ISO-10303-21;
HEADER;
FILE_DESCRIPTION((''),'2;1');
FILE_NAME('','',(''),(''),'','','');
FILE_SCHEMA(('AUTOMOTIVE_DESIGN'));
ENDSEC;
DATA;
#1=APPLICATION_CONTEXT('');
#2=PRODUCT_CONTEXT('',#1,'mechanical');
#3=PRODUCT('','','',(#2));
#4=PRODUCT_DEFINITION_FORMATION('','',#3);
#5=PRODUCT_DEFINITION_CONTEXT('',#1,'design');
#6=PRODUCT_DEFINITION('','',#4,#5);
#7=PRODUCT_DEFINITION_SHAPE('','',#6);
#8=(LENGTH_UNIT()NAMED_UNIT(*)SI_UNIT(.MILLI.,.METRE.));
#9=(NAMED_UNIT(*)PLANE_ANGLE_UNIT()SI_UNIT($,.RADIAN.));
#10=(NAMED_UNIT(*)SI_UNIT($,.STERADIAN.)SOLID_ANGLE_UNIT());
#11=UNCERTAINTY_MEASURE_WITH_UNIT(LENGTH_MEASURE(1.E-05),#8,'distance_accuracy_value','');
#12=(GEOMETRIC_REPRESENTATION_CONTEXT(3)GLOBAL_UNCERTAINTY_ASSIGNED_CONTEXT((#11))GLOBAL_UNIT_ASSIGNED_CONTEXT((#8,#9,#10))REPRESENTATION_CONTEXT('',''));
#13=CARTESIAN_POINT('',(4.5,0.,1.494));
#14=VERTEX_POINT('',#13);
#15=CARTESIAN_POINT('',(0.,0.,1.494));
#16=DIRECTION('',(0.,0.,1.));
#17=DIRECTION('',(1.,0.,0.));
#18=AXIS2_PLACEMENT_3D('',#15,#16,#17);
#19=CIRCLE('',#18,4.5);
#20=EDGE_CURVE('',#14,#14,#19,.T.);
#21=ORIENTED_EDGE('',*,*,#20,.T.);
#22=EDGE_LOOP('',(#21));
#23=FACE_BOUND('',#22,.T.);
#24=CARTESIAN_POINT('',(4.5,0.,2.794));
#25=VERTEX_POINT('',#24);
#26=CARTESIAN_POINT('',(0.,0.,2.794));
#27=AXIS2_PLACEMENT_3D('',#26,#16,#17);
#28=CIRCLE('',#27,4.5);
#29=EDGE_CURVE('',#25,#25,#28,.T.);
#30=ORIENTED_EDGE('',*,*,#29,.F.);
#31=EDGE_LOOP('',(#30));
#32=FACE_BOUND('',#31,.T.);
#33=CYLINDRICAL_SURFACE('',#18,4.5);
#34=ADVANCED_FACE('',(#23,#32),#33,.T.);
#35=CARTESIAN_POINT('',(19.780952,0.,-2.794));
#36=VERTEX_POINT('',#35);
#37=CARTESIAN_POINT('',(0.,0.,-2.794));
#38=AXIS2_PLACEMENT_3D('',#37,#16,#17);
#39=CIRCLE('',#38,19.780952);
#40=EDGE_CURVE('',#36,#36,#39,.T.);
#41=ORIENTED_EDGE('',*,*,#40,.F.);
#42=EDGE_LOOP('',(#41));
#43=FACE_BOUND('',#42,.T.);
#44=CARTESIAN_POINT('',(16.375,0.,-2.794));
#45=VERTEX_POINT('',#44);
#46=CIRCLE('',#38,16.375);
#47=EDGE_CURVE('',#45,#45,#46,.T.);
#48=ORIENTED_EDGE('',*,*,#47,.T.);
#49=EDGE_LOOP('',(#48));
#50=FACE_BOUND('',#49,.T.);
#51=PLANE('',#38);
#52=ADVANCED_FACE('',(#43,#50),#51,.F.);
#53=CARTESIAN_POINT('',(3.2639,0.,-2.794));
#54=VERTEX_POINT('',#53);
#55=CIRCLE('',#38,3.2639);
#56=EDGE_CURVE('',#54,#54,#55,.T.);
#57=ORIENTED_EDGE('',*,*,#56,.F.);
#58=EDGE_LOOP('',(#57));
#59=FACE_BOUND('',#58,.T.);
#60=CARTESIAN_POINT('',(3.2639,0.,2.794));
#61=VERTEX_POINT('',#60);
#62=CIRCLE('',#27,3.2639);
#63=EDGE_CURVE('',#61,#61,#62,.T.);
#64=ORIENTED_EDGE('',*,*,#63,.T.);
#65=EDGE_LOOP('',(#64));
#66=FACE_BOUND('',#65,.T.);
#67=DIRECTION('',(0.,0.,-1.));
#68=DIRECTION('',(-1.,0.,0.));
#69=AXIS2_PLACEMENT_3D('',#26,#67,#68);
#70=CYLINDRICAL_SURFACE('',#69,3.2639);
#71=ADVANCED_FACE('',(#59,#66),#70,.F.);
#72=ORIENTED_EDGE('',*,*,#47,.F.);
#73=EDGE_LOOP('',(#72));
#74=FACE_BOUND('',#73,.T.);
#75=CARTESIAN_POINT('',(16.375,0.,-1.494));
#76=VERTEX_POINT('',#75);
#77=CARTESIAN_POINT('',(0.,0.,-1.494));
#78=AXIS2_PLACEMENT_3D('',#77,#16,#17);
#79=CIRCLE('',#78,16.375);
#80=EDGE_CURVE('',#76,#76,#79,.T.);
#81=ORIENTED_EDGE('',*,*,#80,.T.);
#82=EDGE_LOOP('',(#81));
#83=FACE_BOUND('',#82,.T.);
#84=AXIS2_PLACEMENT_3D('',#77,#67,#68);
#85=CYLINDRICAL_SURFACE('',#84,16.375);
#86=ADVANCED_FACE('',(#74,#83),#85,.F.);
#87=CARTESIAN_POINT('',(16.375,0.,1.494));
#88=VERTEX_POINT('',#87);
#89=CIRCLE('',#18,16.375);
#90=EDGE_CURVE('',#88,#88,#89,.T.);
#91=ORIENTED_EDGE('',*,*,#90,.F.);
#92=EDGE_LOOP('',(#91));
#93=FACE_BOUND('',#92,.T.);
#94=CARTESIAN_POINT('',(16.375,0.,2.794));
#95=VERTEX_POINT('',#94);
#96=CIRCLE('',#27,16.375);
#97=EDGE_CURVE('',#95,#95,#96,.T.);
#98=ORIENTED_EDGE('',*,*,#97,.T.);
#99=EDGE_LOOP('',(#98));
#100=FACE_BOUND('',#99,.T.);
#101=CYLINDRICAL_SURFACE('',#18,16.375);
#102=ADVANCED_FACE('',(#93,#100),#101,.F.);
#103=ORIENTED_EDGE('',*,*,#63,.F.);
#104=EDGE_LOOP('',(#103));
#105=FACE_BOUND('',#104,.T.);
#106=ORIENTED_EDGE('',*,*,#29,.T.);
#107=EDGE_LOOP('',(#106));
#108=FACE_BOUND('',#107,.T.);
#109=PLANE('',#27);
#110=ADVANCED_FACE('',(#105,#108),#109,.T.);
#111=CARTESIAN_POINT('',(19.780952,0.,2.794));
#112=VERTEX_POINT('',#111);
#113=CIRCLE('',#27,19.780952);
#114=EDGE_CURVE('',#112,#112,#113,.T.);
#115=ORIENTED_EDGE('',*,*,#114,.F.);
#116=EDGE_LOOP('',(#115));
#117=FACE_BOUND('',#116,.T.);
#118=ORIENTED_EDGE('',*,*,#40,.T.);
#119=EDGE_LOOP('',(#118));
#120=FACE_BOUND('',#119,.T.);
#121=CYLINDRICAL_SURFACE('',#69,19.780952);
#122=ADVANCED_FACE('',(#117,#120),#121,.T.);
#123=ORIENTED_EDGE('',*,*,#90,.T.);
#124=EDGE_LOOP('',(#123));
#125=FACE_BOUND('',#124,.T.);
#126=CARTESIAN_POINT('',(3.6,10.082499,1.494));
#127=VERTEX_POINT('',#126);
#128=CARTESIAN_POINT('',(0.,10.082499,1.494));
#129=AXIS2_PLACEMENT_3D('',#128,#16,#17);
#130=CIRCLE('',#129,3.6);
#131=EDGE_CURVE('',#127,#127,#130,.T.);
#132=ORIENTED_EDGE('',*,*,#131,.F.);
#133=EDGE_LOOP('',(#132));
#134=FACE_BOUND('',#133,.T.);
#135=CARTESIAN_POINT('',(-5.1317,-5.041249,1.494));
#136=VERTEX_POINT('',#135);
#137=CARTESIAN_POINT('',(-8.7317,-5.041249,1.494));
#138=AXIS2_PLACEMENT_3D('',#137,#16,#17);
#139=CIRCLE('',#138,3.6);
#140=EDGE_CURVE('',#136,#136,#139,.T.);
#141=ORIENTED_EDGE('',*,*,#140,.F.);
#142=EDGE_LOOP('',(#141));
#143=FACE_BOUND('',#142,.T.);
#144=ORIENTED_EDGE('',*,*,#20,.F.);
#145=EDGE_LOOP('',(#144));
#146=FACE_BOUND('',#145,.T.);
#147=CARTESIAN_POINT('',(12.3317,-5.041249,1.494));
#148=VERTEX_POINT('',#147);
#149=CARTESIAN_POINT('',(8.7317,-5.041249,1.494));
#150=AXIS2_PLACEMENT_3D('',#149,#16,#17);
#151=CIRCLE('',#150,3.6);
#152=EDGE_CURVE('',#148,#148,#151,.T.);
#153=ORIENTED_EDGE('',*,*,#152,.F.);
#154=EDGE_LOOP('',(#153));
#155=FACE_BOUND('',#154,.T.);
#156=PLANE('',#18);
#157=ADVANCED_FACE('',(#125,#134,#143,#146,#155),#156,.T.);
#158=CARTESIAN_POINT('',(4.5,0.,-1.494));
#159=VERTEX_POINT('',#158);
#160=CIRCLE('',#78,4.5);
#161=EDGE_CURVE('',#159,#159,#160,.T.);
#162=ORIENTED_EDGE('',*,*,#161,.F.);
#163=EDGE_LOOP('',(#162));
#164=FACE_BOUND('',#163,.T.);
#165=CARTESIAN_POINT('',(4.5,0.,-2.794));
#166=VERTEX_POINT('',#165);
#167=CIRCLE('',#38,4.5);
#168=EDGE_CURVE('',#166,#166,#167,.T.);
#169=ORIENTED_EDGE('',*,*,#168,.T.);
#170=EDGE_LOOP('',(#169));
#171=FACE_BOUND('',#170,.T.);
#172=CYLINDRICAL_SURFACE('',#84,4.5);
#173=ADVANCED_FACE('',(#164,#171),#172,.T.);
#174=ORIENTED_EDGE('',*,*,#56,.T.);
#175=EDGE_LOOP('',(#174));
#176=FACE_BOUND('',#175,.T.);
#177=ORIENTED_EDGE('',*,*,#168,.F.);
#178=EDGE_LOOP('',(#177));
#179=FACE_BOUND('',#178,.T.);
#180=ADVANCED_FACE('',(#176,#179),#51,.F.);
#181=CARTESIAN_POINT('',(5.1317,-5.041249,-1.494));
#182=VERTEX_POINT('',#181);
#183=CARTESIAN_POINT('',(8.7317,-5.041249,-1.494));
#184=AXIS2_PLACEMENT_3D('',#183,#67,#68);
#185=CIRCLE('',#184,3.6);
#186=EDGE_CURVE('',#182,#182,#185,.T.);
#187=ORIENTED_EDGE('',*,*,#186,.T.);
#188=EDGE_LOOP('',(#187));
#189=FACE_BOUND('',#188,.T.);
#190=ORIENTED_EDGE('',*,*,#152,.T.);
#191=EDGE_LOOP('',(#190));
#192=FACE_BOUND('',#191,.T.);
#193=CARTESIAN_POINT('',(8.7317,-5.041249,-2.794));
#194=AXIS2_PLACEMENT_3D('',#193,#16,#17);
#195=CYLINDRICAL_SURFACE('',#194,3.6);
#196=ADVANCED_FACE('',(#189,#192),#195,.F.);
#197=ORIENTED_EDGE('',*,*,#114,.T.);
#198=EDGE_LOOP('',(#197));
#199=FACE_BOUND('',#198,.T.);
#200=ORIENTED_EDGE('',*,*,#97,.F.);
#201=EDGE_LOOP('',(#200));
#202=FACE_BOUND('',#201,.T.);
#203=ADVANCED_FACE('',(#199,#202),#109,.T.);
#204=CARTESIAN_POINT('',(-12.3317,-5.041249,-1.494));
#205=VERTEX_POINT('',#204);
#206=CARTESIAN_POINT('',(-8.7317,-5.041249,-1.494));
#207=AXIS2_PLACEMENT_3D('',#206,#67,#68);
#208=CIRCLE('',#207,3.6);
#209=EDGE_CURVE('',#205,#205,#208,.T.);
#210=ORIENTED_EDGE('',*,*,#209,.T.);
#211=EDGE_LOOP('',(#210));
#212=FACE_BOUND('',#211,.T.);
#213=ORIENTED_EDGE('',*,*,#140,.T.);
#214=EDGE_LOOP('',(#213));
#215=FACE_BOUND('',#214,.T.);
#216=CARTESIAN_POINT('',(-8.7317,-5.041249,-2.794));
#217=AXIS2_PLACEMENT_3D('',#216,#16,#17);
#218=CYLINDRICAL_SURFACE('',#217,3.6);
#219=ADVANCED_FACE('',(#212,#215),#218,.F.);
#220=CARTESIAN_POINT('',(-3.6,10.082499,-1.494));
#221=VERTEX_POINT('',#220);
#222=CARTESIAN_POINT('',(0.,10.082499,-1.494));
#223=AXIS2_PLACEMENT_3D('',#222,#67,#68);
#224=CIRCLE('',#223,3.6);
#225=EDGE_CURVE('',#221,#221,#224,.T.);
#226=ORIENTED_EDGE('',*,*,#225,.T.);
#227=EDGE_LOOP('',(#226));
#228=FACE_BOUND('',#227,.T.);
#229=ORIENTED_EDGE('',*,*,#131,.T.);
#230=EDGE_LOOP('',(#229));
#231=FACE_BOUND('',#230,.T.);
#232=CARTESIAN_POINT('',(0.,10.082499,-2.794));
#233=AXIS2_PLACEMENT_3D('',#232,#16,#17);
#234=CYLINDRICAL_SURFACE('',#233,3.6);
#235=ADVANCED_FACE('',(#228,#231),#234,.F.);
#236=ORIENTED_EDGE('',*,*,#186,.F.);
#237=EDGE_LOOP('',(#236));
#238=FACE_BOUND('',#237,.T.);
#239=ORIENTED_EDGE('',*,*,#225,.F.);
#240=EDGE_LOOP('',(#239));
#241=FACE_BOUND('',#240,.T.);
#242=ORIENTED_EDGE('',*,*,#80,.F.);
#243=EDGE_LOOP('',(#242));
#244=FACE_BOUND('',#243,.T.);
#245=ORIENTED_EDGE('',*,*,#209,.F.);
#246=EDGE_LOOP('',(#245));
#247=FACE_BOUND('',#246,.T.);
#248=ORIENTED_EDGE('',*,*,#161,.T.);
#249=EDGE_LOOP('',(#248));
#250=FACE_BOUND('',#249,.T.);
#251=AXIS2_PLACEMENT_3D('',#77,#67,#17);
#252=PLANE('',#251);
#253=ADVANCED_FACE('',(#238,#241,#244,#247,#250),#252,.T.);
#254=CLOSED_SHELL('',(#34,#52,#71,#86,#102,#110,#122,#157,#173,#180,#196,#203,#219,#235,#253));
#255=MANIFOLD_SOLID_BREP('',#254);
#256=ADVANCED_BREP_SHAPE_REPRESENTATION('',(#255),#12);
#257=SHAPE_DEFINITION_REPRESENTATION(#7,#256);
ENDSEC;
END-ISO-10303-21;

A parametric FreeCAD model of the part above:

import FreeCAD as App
import Part
import Sketcher
from FreeCAD import Vector
Q = App.Units.Quantity

doc = App.newDocument("Part")
params = doc.addObject("Spreadsheet::Sheet", "Params")
for row, (alias, value) in enumerate([
    ("pad1_length", "5.588 mm"),
    ("sketch2_diameter", "9 mm"),
    ("sketch2_diameter2", "32.75 mm"),
    ("pocket1_length", "1.3 mm"),
    ("sketch3_diameter", "7.2 mm"),
], start=1):
    params.set(f"A{row}", alias)
    params.set(f"B{row}", "=" + value)
    params.setAlias(f"B{row}", alias)

body = doc.addObject("PartDesign::Body", "Body")

# Sketch on XY plane
sketch1 = body.newObject("Sketcher::SketchObject", "Sketch")
sketch1.AttachmentSupport = (doc.getObject("XY_Plane"), [""])
sketch1.MapMode = "FlatFace"
sketch1.addGeometry([
    Part.Circle(Vector(0, 0, 0), Vector(0, 0, 1), 19.8),
    Part.Circle(Vector(0, 0, 0), Vector(0, 0, 1), 3.3),
], False)
sketch1.addConstraint([
    Sketcher.Constraint("Coincident", 0, 3, -1, 1),
    Sketcher.Constraint("Coincident", 1, 3, -1, 1),
    Sketcher.Constraint("Diameter", 1, Q("6.5278 mm")),
    Sketcher.Constraint("Diameter", 0, Q("39.561905 mm")),
])
pad1 = body.newObject("PartDesign::Pad", "Pad")
pad1.Profile = sketch1
pad1.setExpression("Length", "Params.pad1_length")
pad1.Midplane = True

# Sketch on XY plane
sketch2 = body.newObject("Sketcher::SketchObject", "Sketch001")
sketch2.AttachmentSupport = (doc.getObject("XY_Plane"), [""])
sketch2.MapMode = "FlatFace"
sketch2.AttachmentOffset = App.Placement(Vector(0, 0, 2.794), App.Rotation())
sketch2.addGeometry([
    Part.Circle(Vector(0, 0, 0), Vector(0, 0, 1), 16.4),
    Part.Circle(Vector(0, 0, 0), Vector(0, 0, 1), 4.5),
], False)
sketch2.addConstraint([
    Sketcher.Constraint("Coincident", 0, 3, -1, 1),
    Sketcher.Constraint("Coincident", 1, 3, -1, 1),
    Sketcher.Constraint("Diameter", 1, Q("9 mm")),
    Sketcher.Constraint("Diameter", 0, Q("32.75 mm")),
])
sketch2.setExpression("Constraints[2]", "Params.sketch2_diameter")
sketch2.setExpression("Constraints[3]", "Params.sketch2_diameter2")
pocket1 = body.newObject("PartDesign::Pocket", "Pocket")
pocket1.Profile = sketch2
pocket1.setExpression("Length", "Params.pocket1_length")
doc.recompute()

mirrored = body.newObject("PartDesign::Mirrored", "Mirrored")
mirrored.Originals = [pocket1]
mirrored.MirrorPlane = (doc.getObject("XY_Plane"), [""])
body.Tip = mirrored

# Sketch on XY plane
sketch3 = body.newObject("Sketcher::SketchObject", "Sketch002")
sketch3.AttachmentSupport = (doc.getObject("XY_Plane"), [""])
sketch3.MapMode = "FlatFace"
sketch3.AttachmentOffset = App.Placement(Vector(0, 0, 1.494), App.Rotation())
sketch3.addGeometry([
    Part.Circle(Vector(0, 10.1, 0), Vector(0, 0, 1), 3.6),
    Part.Circle(Vector(8.7, -5, 0), Vector(0, 0, 1), 3.6),
    Part.Circle(Vector(-8.7, -5, 0), Vector(0, 0, 1), 3.6),
], False)
sketch3.addConstraint([
    Sketcher.Constraint("Equal", 0, 1),
    Sketcher.Constraint("Equal", 1, 2),
    Sketcher.Constraint("Symmetric", 1, 3, 2, 3, -2),
    Sketcher.Constraint("PointOnObject", 0, 3, -2),
    Sketcher.Constraint("Diameter", 0, Q("7.2 mm")),
    Sketcher.Constraint("DistanceY", -1, 1, 0, 3, Q("10.082499 mm")),
    Sketcher.Constraint("DistanceX", -1, 1, 1, 3, Q("8.7317 mm")),
    Sketcher.Constraint("DistanceY", 1, 3, -1, 1, Q("5.041249 mm")),
])
sketch3.setExpression("Constraints[4]", "Params.sketch3_diameter")
pocket2 = body.newObject("PartDesign::Pocket", "Pocket001")
pocket2.Profile = sketch3
pocket2.Type = "ThroughAll"

doc.recompute()
